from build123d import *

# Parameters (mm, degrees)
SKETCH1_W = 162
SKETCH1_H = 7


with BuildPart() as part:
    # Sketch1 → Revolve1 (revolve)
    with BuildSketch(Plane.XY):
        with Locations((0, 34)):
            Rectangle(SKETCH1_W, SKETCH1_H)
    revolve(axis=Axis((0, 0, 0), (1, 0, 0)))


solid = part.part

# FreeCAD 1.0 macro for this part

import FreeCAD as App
import Part
import Sketcher
from FreeCAD import Vector
Q = App.Units.Quantity

doc = App.newDocument("Part")
body = doc.addObject("PartDesign::Body", "Body")

sketch1 = body.newObject("Sketcher::SketchObject", "Sketch")
sketch1.AttachmentSupport = (doc.getObject("XY_Plane"), [""])
sketch1.MapMode = "FlatFace"
sketch1.addGeometry([
    Part.LineSegment(Vector(-81, 37.5, 0), Vector(-81, 30.5, 0)),
    Part.LineSegment(Vector(-81, 30.5, 0), Vector(81, 30.5, 0)),
    Part.LineSegment(Vector(81, 30.5, 0), Vector(81, 37.5, 0)),
    Part.LineSegment(Vector(81, 37.5, 0), Vector(-81, 37.5, 0)),
], False)
sketch1.addConstraint([
    Sketcher.Constraint("Coincident", 0, 2, 1, 1),
    Sketcher.Constraint("Coincident", 1, 2, 2, 1),
    Sketcher.Constraint("Coincident", 2, 2, 3, 1),
    Sketcher.Constraint("Coincident", 3, 2, 0, 1),
    Sketcher.Constraint("Vertical", 0),
    Sketcher.Constraint("Horizontal", 1),
    Sketcher.Constraint("Vertical", 2),
    Sketcher.Constraint("Horizontal", 3),
    Sketcher.Constraint("DistanceX", 1, 1, 1, 2, Q("162 mm")),
    Sketcher.Constraint("DistanceY", 0, 2, 0, 1, Q("7 mm")),
    Sketcher.Constraint("DistanceX", 0, 2, -1, 1, Q("81 mm")),
    Sketcher.Constraint("DistanceY", -1, 1, 0, 2, Q("30.5 mm")),
])
revolution = body.newObject("PartDesign::Revolution", "Revolution")
revolution.Profile = sketch1
revolution.ReferenceAxis = (sketch1, ["H_Axis"])
revolution.Angle = 360

doc.recompute()
